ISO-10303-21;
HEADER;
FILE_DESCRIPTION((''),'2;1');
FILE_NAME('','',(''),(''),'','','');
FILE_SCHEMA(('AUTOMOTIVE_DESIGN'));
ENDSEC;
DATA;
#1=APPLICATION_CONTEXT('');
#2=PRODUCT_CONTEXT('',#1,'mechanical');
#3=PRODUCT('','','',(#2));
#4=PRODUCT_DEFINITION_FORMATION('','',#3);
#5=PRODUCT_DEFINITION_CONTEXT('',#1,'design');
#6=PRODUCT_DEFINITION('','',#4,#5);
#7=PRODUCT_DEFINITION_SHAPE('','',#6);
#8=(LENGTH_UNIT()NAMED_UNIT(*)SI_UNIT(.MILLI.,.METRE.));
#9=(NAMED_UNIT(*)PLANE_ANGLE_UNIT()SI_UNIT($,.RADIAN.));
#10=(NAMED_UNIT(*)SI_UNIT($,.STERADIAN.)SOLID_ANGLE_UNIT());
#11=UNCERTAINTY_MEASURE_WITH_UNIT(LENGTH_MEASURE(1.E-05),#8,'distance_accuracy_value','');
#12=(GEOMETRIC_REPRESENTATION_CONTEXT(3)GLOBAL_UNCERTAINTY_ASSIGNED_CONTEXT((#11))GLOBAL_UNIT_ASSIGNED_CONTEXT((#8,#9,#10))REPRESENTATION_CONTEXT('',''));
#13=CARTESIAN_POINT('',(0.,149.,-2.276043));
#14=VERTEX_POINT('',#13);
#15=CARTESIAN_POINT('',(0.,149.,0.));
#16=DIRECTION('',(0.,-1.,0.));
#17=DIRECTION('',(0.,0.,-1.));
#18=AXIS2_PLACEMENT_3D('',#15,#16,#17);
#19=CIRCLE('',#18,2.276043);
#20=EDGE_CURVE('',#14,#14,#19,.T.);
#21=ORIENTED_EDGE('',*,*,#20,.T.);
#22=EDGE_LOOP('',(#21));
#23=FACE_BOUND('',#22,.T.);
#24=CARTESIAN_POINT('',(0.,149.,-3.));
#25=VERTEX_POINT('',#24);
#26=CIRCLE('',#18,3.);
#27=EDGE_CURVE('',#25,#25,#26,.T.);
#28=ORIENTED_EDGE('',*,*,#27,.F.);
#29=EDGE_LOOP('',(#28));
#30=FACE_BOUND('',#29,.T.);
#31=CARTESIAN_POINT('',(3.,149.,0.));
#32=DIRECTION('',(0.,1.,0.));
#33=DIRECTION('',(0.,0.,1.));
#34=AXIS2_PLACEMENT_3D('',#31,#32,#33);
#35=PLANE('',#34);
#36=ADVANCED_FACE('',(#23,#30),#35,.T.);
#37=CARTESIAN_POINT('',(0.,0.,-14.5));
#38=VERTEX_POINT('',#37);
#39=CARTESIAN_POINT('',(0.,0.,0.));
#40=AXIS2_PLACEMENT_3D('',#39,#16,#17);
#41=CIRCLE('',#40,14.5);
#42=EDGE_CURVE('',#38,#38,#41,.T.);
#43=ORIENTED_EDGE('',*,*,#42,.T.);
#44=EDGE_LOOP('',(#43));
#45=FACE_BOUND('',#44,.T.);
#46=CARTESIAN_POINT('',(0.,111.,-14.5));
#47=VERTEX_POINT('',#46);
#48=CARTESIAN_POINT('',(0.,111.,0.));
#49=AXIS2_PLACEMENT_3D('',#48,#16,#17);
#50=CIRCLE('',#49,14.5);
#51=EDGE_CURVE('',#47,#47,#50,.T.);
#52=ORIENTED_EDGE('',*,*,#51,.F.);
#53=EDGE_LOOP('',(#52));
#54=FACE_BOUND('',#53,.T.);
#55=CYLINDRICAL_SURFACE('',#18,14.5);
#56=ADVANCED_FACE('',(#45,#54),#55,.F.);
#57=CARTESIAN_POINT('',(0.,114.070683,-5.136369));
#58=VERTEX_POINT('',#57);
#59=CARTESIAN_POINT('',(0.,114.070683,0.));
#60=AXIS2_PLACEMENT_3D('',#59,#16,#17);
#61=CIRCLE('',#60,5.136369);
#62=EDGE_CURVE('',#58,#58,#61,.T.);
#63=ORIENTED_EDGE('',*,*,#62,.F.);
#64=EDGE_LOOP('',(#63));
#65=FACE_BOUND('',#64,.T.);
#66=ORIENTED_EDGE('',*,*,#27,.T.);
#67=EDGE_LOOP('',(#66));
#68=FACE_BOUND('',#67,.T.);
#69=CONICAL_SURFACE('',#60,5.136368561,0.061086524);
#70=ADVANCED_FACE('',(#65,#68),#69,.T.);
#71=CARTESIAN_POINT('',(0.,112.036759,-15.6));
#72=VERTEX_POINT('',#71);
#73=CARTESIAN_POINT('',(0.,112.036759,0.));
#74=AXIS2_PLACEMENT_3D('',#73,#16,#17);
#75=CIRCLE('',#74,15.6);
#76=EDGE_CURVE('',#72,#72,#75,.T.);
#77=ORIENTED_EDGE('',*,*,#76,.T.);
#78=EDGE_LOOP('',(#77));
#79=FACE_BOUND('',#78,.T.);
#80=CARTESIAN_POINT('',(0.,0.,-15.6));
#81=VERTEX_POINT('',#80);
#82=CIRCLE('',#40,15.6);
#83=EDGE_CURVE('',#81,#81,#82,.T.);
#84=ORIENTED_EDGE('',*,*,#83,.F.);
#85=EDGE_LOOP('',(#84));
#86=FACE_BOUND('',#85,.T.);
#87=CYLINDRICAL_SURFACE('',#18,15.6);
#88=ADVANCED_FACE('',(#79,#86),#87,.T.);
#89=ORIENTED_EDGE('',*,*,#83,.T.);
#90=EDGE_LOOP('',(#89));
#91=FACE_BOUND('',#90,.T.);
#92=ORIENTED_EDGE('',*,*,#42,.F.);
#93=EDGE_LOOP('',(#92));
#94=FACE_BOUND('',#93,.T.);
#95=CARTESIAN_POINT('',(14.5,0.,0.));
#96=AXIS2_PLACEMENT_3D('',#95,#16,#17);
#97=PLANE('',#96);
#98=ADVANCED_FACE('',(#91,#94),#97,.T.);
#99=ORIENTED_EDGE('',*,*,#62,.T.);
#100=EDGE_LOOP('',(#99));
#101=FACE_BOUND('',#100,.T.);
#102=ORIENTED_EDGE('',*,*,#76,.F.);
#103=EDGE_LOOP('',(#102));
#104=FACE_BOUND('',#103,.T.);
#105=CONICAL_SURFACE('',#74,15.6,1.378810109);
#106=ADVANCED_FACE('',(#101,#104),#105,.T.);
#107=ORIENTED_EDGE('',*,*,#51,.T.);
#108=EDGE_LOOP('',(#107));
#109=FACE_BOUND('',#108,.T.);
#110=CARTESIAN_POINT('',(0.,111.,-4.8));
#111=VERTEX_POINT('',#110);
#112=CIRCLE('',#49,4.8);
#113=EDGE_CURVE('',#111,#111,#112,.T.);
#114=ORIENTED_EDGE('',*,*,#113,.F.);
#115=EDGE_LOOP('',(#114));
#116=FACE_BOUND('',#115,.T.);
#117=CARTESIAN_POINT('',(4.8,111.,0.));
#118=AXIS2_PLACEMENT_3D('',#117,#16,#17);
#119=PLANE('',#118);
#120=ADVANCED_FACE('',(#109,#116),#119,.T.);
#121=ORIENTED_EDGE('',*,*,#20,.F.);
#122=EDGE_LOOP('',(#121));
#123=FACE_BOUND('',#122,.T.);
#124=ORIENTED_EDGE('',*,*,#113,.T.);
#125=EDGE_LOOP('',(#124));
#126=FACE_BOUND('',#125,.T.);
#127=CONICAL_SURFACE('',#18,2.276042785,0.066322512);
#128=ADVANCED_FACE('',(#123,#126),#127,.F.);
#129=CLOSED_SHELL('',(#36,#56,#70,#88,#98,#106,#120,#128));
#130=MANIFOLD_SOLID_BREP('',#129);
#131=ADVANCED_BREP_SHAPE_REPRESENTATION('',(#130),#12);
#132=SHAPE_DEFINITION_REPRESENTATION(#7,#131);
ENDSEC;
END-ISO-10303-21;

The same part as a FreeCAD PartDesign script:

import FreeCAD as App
import Part
import Sketcher

V = App.Vector
Q = App.Units.Quantity

doc = App.newDocument("Part")
body = doc.addObject("PartDesign::Body", "Body")

# Sketch on XY plane
sketch1 = body.newObject("Sketcher::SketchObject", "Sketch")
sketch1.AttachmentSupport = (doc.getObject("XY_Plane"), [""])
sketch1.MapMode = "FlatFace"
sketch1.addGeometry([
    Part.LineSegment(V(14.5, 111, 0), V(14.5, 0, 0)),  # 0
    Part.LineSegment(V(14.5, 0, 0), V(15.6, 0, 0)),  # 1
    Part.LineSegment(V(15.6, 0, 0), V(15.6, 112.036759, 0)),  # 2
    Part.LineSegment(V(15.6, 112.036759, 0), V(5.136369, 114.070683, 0)),  # 3
    Part.LineSegment(V(5.136369, 114.070683, 0), V(3, 149, 0)),  # 4
    Part.LineSegment(V(3, 149, 0), V(2.276043, 149, 0)),  # 5
    Part.LineSegment(V(2.276043, 149, 0), V(4.8, 111, 0)),  # 6
    Part.LineSegment(V(4.8, 111, 0), V(14.5, 111, 0)),  # 7
], False)
sketch1.addConstraint([
    Sketcher.Constraint("Coincident", 0, 2, 1, 1),
    Sketcher.Constraint("Coincident", 1, 2, 2, 1),
    Sketcher.Constraint("Coincident", 2, 2, 3, 1),
    Sketcher.Constraint("Coincident", 3, 2, 4, 1),
    Sketcher.Constraint("Coincident", 4, 2, 5, 1),
    Sketcher.Constraint("Coincident", 5, 2, 6, 1),
    Sketcher.Constraint("Coincident", 6, 2, 7, 1),
    Sketcher.Constraint("Coincident", 7, 2, 0, 1),
    Sketcher.Constraint("Vertical", 0),
    Sketcher.Constraint("Horizontal", 1),
    Sketcher.Constraint("Vertical", 2),
    Sketcher.Constraint("Horizontal", 5),
    Sketcher.Constraint("Horizontal", 7),
    Sketcher.Constraint("PointOnObject", 0, 2, -1),
    Sketcher.Constraint("DistanceY", 0, 2, 0, 1, Q("111 mm")),
    Sketcher.Constraint("Angle", 3, Q("169 deg")),
    Sketcher.Constraint("DistanceX", 1, 1, 1, 2, Q("1.1 mm")),
    Sketcher.Constraint("DistanceX", 7, 1, 7, 2, Q("9.7 mm")),
    Sketcher.Constraint("DistanceX", -1, 1, 4, 2, Q("3 mm")),
    Sketcher.Constraint("DistanceY", -1, 1, 4, 2, Q("149 mm")),
    Sketcher.Constraint("Angle", 4, Q("93.5 deg")),
    Sketcher.Constraint("Angle", 6, Q("-86.2 deg")),
    Sketcher.Constraint("DistanceX", -1, 1, 0, 2, Q("14.5 mm")),
    Sketcher.Constraint("DistanceY", 2, 1, 2, 2, Q("112.036759 mm")),
])
revolution = body.newObject("PartDesign::Revolution", "Revolution")
revolution.Profile = sketch1
revolution.ReferenceAxis = (sketch1, ["V_Axis"])
revolution.Angle = 360

doc.recompute()
